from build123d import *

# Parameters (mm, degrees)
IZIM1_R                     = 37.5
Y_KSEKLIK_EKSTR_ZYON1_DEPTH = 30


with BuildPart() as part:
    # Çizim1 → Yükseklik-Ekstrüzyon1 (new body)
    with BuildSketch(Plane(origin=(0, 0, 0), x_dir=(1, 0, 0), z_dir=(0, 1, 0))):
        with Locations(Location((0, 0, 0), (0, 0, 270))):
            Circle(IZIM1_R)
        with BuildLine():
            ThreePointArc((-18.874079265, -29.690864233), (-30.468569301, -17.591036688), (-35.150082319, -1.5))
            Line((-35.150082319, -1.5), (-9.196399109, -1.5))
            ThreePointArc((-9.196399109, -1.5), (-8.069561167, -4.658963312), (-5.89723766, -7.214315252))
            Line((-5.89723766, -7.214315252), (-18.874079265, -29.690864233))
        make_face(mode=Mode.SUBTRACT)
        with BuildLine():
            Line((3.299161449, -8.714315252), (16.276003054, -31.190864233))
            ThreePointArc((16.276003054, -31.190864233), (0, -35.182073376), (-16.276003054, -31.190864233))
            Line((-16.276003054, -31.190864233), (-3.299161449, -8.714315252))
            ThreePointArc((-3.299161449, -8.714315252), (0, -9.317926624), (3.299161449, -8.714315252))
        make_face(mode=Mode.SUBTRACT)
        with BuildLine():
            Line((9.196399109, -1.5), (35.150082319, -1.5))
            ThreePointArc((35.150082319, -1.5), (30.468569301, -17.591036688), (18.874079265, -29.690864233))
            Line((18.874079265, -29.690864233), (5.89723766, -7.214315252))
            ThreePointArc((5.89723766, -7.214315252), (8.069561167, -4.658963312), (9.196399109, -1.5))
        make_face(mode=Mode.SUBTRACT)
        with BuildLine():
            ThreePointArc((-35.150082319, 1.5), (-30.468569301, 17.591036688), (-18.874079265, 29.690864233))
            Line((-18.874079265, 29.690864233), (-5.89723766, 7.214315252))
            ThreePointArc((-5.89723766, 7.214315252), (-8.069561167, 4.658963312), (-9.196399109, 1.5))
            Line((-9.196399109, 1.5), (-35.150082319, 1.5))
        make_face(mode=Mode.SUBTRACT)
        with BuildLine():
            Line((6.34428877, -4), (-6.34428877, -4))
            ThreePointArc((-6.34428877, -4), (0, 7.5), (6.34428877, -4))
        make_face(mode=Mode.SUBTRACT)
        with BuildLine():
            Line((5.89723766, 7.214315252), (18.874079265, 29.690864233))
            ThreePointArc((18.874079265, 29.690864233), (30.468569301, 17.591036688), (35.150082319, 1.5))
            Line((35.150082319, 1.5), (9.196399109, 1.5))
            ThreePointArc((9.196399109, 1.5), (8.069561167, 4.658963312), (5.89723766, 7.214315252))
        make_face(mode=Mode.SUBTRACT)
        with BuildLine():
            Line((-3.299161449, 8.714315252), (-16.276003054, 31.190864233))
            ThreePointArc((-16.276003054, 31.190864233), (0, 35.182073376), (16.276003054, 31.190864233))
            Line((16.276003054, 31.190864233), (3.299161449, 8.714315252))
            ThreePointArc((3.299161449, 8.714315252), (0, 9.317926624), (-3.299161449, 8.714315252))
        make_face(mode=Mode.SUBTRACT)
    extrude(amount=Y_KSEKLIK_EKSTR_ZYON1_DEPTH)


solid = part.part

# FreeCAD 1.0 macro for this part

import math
import FreeCAD as App
import Part
import Sketcher
from FreeCAD import Vector
Q = App.Units.Quantity

doc = App.newDocument("Part")
body = doc.addObject("PartDesign::Body", "Body")

# Sketch on XZ plane
sketch1 = body.newObject("Sketcher::SketchObject", "Sketch")
sketch1.AttachmentSupport = (doc.getObject("XZ_Plane"), [""])
sketch1.MapMode = "FlatFace"
sketch1.addGeometry(Part.Circle(Vector(0, 0, 0), Vector(0, 0, 1), 38), False)
sketch1.addGeometry(Part.LineSegment(Vector(-9, -2, 0), Vector(-35, -2, 0)), False)
sketch1.addGeometry(Part.ArcOfCircle(Part.Circle(Vector(0, 0, 0), Vector(0, 0, 1), 35), math.radians(-178), math.radians(-122)), False)
sketch1.addGeometry(Part.LineSegment(Vector(-19, -30, 0), Vector(-6, -7, 0)), False)
sketch1.addGeometry(Part.ArcOfCircle(Part.Circle(Vector(0, 0, 0), Vector(0, 0, 1), 9), math.radians(-171), math.radians(-129)), False)
sketch1.addGeometry(Part.ArcOfCircle(Part.Circle(Vector(0, 0, 0), Vector(0, 0, 1), 9), math.radians(-111), math.radians(-69)), False)
sketch1.addGeometry(Part.LineSegment(Vector(-3, -9, 0), Vector(-16, -31, 0)), False)
sketch1.addGeometry(Part.ArcOfCircle(Part.Circle(Vector(0, 0, 0), Vector(0, 0, 1), 35), math.radians(-118), math.radians(-62)), False)
sketch1.addGeometry(Part.LineSegment(Vector(16, -31, 0), Vector(3, -9, 0)), False)
sketch1.addGeometry(Part.LineSegment(Vector(-6, 7, 0), Vector(-19, 30, 0)), False)
sketch1.addGeometry(Part.ArcOfCircle(Part.Circle(Vector(0, 0, 0), Vector(0, 0, 1), 35), math.radians(122), math.radians(178)), False)
sketch1.addGeometry(Part.LineSegment(Vector(-35, 2, 0), Vector(-9, 2, 0)), False)
sketch1.addGeometry(Part.ArcOfCircle(Part.Circle(Vector(0, 0, 0), Vector(0, 0, 1), 9), math.radians(129), math.radians(171)), False)
sketch1.addGeometry(Part.ArcOfCircle(Part.Circle(Vector(0, 0, 0), Vector(0, 0, 1), 8), math.radians(148), math.radians(392)), False)
sketch1.addGeometry(Part.LineSegment(Vector(6, 4, 0), Vector(-6, 4, 0)), False)
sketch1.addGeometry(Part.ArcOfCircle(Part.Circle(Vector(0, 0, 0), Vector(0, 0, 1), 9), math.radians(-51), math.radians(-9)), False)
sketch1.addGeometry(Part.LineSegment(Vector(6, -7, 0), Vector(19, -30, 0)), False)
sketch1.addGeometry(Part.ArcOfCircle(Part.Circle(Vector(0, 0, 0), Vector(0, 0, 1), 35), math.radians(-58), math.radians(-2)), False)
sketch1.addGeometry(Part.LineSegment(Vector(35, -2, 0), Vector(9, -2, 0)), False)
sketch1.addGeometry(Part.ArcOfCircle(Part.Circle(Vector(0, 0, 0), Vector(0, 0, 1), 9), math.radians(69), math.radians(111)), False)
sketch1.addGeometry(Part.LineSegment(Vector(3, 9, 0), Vector(16, 31, 0)), False)
sketch1.addGeometry(Part.ArcOfCircle(Part.Circle(Vector(0, 0, 0), Vector(0, 0, 1), 35), math.radians(62), math.radians(118)), False)
sketch1.addGeometry(Part.LineSegment(Vector(-16, 31, 0), Vector(-3, 9, 0)), False)
sketch1.addGeometry(Part.ArcOfCircle(Part.Circle(Vector(0, 0, 0), Vector(0, 0, 1), 9), math.radians(9), math.radians(51)), False)
sketch1.addGeometry(Part.LineSegment(Vector(9, 2, 0), Vector(35, 2, 0)), False)
sketch1.addGeometry(Part.ArcOfCircle(Part.Circle(Vector(0, 0, 0), Vector(0, 0, 1), 35), math.radians(2), math.radians(58)), False)
sketch1.addGeometry(Part.LineSegment(Vector(19, 30, 0), Vector(6, 7, 0)), False)
sketch1.addConstraint(Sketcher.Constraint("Coincident", 1, 2, 2, 1))
sketch1.addConstraint(Sketcher.Constraint("Coincident", 2, 2, 3, 1))
sketch1.addConstraint(Sketcher.Constraint("Coincident", 3, 2, 4, 2))
sketch1.addConstraint(Sketcher.Constraint("Coincident", 4, 1, 1, 1))
sketch1.addConstraint(Sketcher.Constraint("Coincident", 5, 1, 6, 1))
sketch1.addConstraint(Sketcher.Constraint("Coincident", 6, 2, 7, 1))
sketch1.addConstraint(Sketcher.Constraint("Coincident", 7, 2, 8, 1))
sketch1.addConstraint(Sketcher.Constraint("Coincident", 8, 2, 5, 2))
sketch1.addConstraint(Sketcher.Constraint("Coincident", 9, 2, 10, 1))
sketch1.addConstraint(Sketcher.Constraint("Coincident", 10, 2, 11, 1))
sketch1.addConstraint(Sketcher.Constraint("Coincident", 11, 2, 12, 2))
sketch1.addConstraint(Sketcher.Constraint("Coincident", 12, 1, 9, 1))
sketch1.addConstraint(Sketcher.Constraint("Coincident", 13, 1, 14, 2))
sketch1.addConstraint(Sketcher.Constraint("Coincident", 14, 1, 13, 2))
sketch1.addConstraint(Sketcher.Constraint("Coincident", 15, 1, 16, 1))
sketch1.addConstraint(Sketcher.Constraint("Coincident", 16, 2, 17, 1))
sketch1.addConstraint(Sketcher.Constraint("Coincident", 17, 2, 18, 1))
sketch1.addConstraint(Sketcher.Constraint("Coincident", 18, 2, 15, 2))
sketch1.addConstraint(Sketcher.Constraint("Coincident", 19, 1, 20, 1))
sketch1.addConstraint(Sketcher.Constraint("Coincident", 20, 2, 21, 1))
sketch1.addConstraint(Sketcher.Constraint("Coincident", 21, 2, 22, 1))
sketch1.addConstraint(Sketcher.Constraint("Coincident", 22, 2, 19, 2))
sketch1.addConstraint(Sketcher.Constraint("Coincident", 23, 1, 24, 1))
sketch1.addConstraint(Sketcher.Constraint("Coincident", 24, 2, 25, 1))
sketch1.addConstraint(Sketcher.Constraint("Coincident", 25, 2, 26, 1))
sketch1.addConstraint(Sketcher.Constraint("Coincident", 26, 2, 23, 2))
sketch1.addConstraint(Sketcher.Constraint("Horizontal", 1))
sketch1.addConstraint(Sketcher.Constraint("Horizontal", 11))
sketch1.addConstraint(Sketcher.Constraint("Horizontal", 14))
sketch1.addConstraint(Sketcher.Constraint("Horizontal", 18))
sketch1.addConstraint(Sketcher.Constraint("Horizontal", 24))
sketch1.addConstraint(Sketcher.Constraint("Coincident", 0, 3, -1, 1))
sketch1.addConstraint(Sketcher.Constraint("Coincident", 2, 3, -1, 1))
sketch1.addConstraint(Sketcher.Constraint("Coincident", 4, 3, -1, 1))
sketch1.addConstraint(Sketcher.Constraint("Coincident", 5, 3, -1, 1))
sketch1.addConstraint(Sketcher.Constraint("Coincident", 7, 3, -1, 1))
sketch1.addConstraint(Sketcher.Constraint("Coincident", 10, 3, -1, 1))
sketch1.addConstraint(Sketcher.Constraint("Coincident", 12, 3, -1, 1))
sketch1.addConstraint(Sketcher.Constraint("Coincident", 13, 3, -1, 1))
sketch1.addConstraint(Sketcher.Constraint("Coincident", 15, 3, -1, 1))
sketch1.addConstraint(Sketcher.Constraint("Coincident", 17, 3, -1, 1))
sketch1.addConstraint(Sketcher.Constraint("Coincident", 19, 3, -1, 1))
sketch1.addConstraint(Sketcher.Constraint("Coincident", 21, 3, -1, 1))
sketch1.addConstraint(Sketcher.Constraint("Coincident", 23, 3, -1, 1))
sketch1.addConstraint(Sketcher.Constraint("Coincident", 25, 3, -1, 1))
sketch1.addConstraint(Sketcher.Constraint("Equal", 4, 5))
sketch1.addConstraint(Sketcher.Constraint("Equal", 2, 7))
sketch1.addConstraint(Sketcher.Constraint("Equal", 7, 10))
sketch1.addConstraint(Sketcher.Constraint("Equal", 5, 12))
sketch1.addConstraint(Sketcher.Constraint("Equal", 12, 15))
sketch1.addConstraint(Sketcher.Constraint("Equal", 10, 17))
sketch1.addConstraint(Sketcher.Constraint("Equal", 15, 19))
sketch1.addConstraint(Sketcher.Constraint("Equal", 17, 21))
sketch1.addConstraint(Sketcher.Constraint("Equal", 19, 23))
sketch1.addConstraint(Sketcher.Constraint("Equal", 21, 25))
sketch1.addConstraint(Sketcher.Constraint("Parallel", 3, 6))
sketch1.addConstraint(Sketcher.Constraint("Parallel", 8, 9))
sketch1.addConstraint(Sketcher.Constraint("Parallel", 9, 16))
sketch1.addConstraint(Sketcher.Constraint("Parallel", 6, 20))
sketch1.addConstraint(Sketcher.Constraint("Parallel", 16, 22))
sketch1.addConstraint(Sketcher.Constraint("Parallel", 20, 26))
sketch1.addConstraint(Sketcher.Constraint("Horizontal", 6, 2, 7, 2))
sketch1.addConstraint(Sketcher.Constraint("Horizontal", 5, 1, 8, 2))
sketch1.addConstraint(Sketcher.Constraint("Horizontal", 3, 2, 15, 1))
sketch1.addConstraint(Sketcher.Constraint("Horizontal", 4, 1, 17, 2))
sketch1.addConstraint(Sketcher.Constraint("Horizontal", 20, 2, 21, 2))
sketch1.addConstraint(Sketcher.Constraint("Horizontal", 11, 2, 23, 1))
sketch1.addConstraint(Sketcher.Constraint("Horizontal", 9, 2, 25, 2))
sketch1.addConstraint(Sketcher.Constraint("Vertical", 2, 2, 9, 2))
sketch1.addConstraint(Sketcher.Constraint("Vertical", 1, 2, 10, 2))
sketch1.addConstraint(Sketcher.Constraint("Vertical", 8, 2, 19, 1))
sketch1.addConstraint(Sketcher.Constraint("Equal", 3, 6))
sketch1.addConstraint(Sketcher.Constraint("Diameter", 0, Q("75 mm")))
sketch1.addConstraint(Sketcher.Constraint("Radius", 13, Q("7.5 mm")))
sketch1.addConstraint(Sketcher.Constraint("Angle", 3, Q("60 deg")))
sketch1.addConstraint(Sketcher.Constraint("DistanceY", -1, 1, 13, 1, Q("4 mm")))
sketch1.addConstraint(Sketcher.Constraint("DistanceY", 1, 2, 10, 2, Q("3 mm")))
sketch1.addConstraint(Sketcher.Constraint("DistanceY", 5, 1, 3, 2, Q("1.5 mm")))
sketch1.addConstraint(Sketcher.Constraint("Radius", 2, Q("35.182073 mm")))
sketch1.addConstraint(Sketcher.Constraint("Radius", 4, Q("9.317927 mm")))
pad1 = body.newObject("PartDesign::Pad", "Pad")
pad1.Profile = sketch1
pad1.Length = 30
pad1.Reversed = True

doc.recompute()
